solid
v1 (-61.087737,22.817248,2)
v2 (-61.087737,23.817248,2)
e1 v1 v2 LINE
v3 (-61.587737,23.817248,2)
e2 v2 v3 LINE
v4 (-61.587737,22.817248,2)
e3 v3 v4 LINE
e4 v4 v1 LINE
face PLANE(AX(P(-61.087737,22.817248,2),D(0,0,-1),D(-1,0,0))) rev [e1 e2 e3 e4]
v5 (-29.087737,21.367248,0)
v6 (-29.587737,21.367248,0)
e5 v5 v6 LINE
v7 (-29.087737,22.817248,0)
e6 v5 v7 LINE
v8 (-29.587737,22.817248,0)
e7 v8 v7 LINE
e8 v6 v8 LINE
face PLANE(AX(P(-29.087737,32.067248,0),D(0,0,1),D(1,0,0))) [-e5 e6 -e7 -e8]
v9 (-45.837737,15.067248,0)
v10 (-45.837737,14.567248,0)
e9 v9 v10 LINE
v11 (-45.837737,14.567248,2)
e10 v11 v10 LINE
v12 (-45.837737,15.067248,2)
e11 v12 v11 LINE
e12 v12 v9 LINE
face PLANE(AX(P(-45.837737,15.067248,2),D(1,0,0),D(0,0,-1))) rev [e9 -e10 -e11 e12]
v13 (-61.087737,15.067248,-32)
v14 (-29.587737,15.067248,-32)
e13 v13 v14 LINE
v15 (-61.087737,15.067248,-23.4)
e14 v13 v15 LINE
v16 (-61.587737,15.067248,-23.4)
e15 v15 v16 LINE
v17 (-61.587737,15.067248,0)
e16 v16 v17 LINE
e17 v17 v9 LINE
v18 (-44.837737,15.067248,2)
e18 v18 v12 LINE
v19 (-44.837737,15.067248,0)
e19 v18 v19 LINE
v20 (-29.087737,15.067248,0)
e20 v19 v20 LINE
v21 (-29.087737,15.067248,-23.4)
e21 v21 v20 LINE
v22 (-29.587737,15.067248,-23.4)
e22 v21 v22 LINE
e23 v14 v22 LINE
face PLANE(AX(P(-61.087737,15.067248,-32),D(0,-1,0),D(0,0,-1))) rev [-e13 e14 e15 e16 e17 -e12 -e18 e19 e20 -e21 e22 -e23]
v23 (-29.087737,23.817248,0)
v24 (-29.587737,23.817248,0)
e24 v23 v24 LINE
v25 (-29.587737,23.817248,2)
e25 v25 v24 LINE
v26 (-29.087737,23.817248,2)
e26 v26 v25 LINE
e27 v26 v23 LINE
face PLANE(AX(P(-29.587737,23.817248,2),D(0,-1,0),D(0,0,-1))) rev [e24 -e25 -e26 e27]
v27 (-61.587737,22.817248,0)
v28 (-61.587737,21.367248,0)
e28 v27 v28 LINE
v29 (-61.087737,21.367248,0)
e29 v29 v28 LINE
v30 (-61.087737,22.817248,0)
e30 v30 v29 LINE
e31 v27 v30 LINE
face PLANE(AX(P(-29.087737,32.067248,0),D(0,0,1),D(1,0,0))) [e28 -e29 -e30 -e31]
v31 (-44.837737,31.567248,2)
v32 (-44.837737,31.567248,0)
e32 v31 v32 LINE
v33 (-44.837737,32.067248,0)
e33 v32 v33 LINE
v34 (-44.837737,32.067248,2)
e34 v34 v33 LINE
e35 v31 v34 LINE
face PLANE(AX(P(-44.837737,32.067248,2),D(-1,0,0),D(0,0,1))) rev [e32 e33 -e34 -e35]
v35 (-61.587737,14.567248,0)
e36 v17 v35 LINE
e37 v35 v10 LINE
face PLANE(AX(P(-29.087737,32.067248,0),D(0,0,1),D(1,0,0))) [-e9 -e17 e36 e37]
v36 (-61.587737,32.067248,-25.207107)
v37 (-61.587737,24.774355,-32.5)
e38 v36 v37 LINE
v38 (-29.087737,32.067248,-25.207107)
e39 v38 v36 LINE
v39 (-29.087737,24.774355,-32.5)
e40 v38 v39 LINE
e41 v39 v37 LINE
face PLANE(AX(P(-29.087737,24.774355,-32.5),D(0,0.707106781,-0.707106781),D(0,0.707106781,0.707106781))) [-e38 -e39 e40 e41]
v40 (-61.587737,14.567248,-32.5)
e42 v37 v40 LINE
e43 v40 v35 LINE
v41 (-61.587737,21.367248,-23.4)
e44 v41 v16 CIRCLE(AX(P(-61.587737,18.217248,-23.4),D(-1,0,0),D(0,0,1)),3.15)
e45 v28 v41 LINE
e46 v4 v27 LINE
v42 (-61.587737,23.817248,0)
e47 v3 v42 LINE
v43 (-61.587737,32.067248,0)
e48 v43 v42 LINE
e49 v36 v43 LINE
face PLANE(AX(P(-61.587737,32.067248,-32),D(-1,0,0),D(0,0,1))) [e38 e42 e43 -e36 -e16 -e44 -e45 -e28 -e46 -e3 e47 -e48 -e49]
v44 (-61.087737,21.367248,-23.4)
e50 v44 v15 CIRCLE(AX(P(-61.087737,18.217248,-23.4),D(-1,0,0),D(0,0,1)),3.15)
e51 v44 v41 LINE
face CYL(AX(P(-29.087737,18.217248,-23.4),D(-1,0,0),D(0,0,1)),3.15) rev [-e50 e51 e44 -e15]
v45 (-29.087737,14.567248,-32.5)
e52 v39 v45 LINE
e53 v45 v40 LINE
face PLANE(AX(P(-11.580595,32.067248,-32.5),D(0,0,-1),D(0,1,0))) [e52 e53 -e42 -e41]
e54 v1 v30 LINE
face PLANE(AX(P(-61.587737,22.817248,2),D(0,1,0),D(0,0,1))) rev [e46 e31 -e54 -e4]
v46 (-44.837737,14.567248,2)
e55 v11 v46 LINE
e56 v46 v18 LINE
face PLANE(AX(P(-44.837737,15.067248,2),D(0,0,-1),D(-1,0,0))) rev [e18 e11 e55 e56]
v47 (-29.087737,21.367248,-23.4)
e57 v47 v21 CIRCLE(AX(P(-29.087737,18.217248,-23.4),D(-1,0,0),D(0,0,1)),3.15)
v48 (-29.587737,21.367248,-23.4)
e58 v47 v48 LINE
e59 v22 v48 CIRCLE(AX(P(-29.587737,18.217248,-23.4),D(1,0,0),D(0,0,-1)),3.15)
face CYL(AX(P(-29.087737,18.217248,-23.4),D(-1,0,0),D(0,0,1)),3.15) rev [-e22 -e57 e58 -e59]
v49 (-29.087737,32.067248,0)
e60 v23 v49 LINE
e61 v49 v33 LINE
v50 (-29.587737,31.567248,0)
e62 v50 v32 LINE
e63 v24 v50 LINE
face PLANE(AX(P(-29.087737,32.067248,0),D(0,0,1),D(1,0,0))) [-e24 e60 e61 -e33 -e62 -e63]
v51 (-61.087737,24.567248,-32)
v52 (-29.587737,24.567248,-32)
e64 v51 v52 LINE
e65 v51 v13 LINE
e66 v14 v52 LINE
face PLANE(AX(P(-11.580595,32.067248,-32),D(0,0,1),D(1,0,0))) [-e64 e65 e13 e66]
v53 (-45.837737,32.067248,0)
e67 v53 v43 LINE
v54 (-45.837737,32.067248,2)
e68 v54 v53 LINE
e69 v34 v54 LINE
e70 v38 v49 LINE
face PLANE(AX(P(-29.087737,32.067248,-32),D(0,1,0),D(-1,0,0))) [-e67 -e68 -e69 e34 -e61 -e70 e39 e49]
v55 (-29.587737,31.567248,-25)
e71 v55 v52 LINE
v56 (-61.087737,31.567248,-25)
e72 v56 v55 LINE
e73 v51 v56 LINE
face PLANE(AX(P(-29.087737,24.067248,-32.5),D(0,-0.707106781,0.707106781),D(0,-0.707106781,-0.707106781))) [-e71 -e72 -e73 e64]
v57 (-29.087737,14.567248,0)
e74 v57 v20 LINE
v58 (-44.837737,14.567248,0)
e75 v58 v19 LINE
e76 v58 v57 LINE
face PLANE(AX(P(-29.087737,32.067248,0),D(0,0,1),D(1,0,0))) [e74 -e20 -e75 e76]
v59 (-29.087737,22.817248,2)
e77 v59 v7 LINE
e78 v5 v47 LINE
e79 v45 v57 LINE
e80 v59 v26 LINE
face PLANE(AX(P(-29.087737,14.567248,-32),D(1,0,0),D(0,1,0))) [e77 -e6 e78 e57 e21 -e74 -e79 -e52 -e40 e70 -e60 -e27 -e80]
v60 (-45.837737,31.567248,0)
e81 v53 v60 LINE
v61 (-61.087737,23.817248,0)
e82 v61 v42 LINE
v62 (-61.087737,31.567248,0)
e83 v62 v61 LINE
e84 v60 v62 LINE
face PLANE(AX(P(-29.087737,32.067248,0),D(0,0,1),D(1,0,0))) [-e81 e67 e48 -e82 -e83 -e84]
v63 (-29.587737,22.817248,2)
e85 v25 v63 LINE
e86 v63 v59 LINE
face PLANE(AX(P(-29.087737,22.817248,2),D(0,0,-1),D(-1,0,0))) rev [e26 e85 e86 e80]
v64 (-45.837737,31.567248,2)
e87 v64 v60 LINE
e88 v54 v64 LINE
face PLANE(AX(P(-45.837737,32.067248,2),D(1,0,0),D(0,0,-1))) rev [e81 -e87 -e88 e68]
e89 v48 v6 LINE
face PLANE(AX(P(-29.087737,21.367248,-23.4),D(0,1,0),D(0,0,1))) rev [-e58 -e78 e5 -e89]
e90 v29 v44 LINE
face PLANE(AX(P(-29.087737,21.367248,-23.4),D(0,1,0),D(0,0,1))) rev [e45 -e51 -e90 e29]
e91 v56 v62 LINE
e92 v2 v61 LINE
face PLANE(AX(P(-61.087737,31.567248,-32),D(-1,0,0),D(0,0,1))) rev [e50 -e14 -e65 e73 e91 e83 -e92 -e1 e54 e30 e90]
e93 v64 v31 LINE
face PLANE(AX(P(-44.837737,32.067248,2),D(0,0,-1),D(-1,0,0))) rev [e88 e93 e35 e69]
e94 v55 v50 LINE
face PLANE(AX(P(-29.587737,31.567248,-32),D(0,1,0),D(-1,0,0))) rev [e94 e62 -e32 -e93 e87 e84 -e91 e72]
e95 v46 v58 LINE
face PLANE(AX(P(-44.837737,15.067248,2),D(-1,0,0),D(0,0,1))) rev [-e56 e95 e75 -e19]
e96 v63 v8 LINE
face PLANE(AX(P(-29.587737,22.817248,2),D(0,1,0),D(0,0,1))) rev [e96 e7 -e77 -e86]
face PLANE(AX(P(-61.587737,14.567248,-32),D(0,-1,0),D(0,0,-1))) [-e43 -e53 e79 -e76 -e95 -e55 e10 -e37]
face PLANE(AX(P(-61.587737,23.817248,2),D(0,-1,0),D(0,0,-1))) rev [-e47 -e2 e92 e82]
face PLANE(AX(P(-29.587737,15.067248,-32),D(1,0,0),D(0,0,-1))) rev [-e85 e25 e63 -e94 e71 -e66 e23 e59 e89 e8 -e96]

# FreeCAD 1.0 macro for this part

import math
import FreeCAD as App
import Part
import Sketcher
Q = App.Units.Quantity

doc = App.newDocument("Part")
params = doc.addObject("Spreadsheet::Sheet", "Params")
for row, (alias, value) in enumerate([
    ("sketch1_width", "32.5 mm"),
    ("sketch1_width2", "31.5 mm"),
    ("sketch1_height", "17.5 mm"),
    ("sketch1_height2", "16.5 mm"),
    ("pad1_length", "32 mm"),
    ("sketch2_width", "17.5 mm"),
    ("sketch2_height", "0.5 mm"),
    ("pad2_length", "32.5 mm"),
    ("sketch3_radius", "3.15 mm"),
    ("sketch4_width", "1 mm"),
    ("sketch4_width2", "0.5 mm"),
    ("pad3_length", "2 mm"),
    ("pocket2_length", "35.69367 mm"),
    ("pad4_length", "32.5 mm"),
], start=1):
    params.set(f"A{row}", alias)
    params.set(f"B{row}", "=" + value)
    params.setAlias(f"B{row}", alias)

body = doc.addObject("PartDesign::Body", "Body")

# Sketch on XY plane
sketch1 = body.newObject("Sketcher::SketchObject", "Sketch")
sketch1.AttachmentSupport = (doc.getObject("XY_Plane"), [""])
sketch1.MapMode = "FlatFace"
sketch1.addGeometry([
    Part.LineSegment(App.Vector(-61.587737, 32.067248, 0), App.Vector(-61.587737, 14.567248, 0)),  # 0
    Part.LineSegment(App.Vector(-61.587737, 14.567248, 0), App.Vector(-29.087737, 14.567248, 0)),  # 1
    Part.LineSegment(App.Vector(-29.087737, 14.567248, 0), App.Vector(-29.087737, 32.067248, 0)),  # 2
    Part.LineSegment(App.Vector(-29.087737, 32.067248, 0), App.Vector(-61.587737, 32.067248, 0)),  # 3
    Part.LineSegment(App.Vector(-29.587737, 15.067248, 0), App.Vector(-61.087737, 15.067248, 0)),  # 4
    Part.LineSegment(App.Vector(-61.087737, 15.067248, 0), App.Vector(-61.087737, 31.567248, 0)),  # 5
    Part.LineSegment(App.Vector(-61.087737, 31.567248, 0), App.Vector(-29.587737, 31.567248, 0)),  # 6
    Part.LineSegment(App.Vector(-29.587737, 31.567248, 0), App.Vector(-29.587737, 15.067248, 0)),  # 7
], False)
sketch1.addConstraint([
    Sketcher.Constraint("Coincident", 0, 2, 1, 1),
    Sketcher.Constraint("Coincident", 1, 2, 2, 1),
    Sketcher.Constraint("Coincident", 2, 2, 3, 1),
    Sketcher.Constraint("Coincident", 3, 2, 0, 1),
    Sketcher.Constraint("Coincident", 4, 2, 5, 1),
    Sketcher.Constraint("Coincident", 5, 2, 6, 1),
    Sketcher.Constraint("Coincident", 6, 2, 7, 1),
    Sketcher.Constraint("Coincident", 7, 2, 4, 1),
    Sketcher.Constraint("Vertical", 0),
    Sketcher.Constraint("Horizontal", 1),
    Sketcher.Constraint("Vertical", 2),
    Sketcher.Constraint("Horizontal", 3),
    Sketcher.Constraint("Horizontal", 4),
    Sketcher.Constraint("Vertical", 5),
    Sketcher.Constraint("Horizontal", 6),
    Sketcher.Constraint("Vertical", 7),
    Sketcher.Constraint("DistanceX", 1, 1, 1, 2, Q("32.5 mm")),
    Sketcher.Constraint("DistanceX", 4, 2, 4, 1, Q("31.5 mm")),
    Sketcher.Constraint("DistanceY", 0, 2, 0, 1, Q("17.5 mm")),
    Sketcher.Constraint("DistanceY", 5, 1, 5, 2, Q("16.5 mm")),
    Sketcher.Constraint("DistanceY", 4, 2, 3, 2, Q("17 mm")),
    Sketcher.Constraint("DistanceX", 4, 2, 1, 2, Q("32 mm")),
    Sketcher.Constraint("DistanceY", -1, 1, 0, 2, Q("14.567248 mm")),
    Sketcher.Constraint("DistanceX", 0, 2, -1, 1, Q("61.587737 mm")),
])
sketch1.setExpression("Constraints[16]", "Params.sketch1_width")
sketch1.setExpression("Constraints[17]", "Params.sketch1_width2")
sketch1.setExpression("Constraints[18]", "Params.sketch1_height")
sketch1.setExpression("Constraints[19]", "Params.sketch1_height2")
pad1 = body.newObject("PartDesign::Pad", "Pad")
pad1.Profile = sketch1
pad1.setExpression("Length", "Params.pad1_length")
pad1.Reversed = True

# Sketch on YZ plane
sketch2 = body.newObject("Sketcher::SketchObject", "Sketch001")
sketch2.AttachmentSupport = (doc.getObject("YZ_Plane"), [""])
sketch2.MapMode = "FlatFace"
sketch2.AttachmentOffset = App.Placement(App.Vector(0, 0, -61.587737), App.Rotation())
sketch2.addGeometry([
    Part.LineSegment(App.Vector(32.067248, -32.5, 0), App.Vector(14.567248, -32.5, 0)),
    Part.LineSegment(App.Vector(14.567248, -32.5, 0), App.Vector(14.567248, -32, 0)),
    Part.LineSegment(App.Vector(14.567248, -32, 0), App.Vector(32.067248, -32, 0)),
    Part.LineSegment(App.Vector(32.067248, -32, 0), App.Vector(32.067248, -32.5, 0)),
], False)
sketch2.addConstraint([
    Sketcher.Constraint("Coincident", 0, 2, 1, 1),
    Sketcher.Constraint("Coincident", 1, 2, 2, 1),
    Sketcher.Constraint("Coincident", 2, 2, 3, 1),
    Sketcher.Constraint("Coincident", 3, 2, 0, 1),
    Sketcher.Constraint("Horizontal", 0),
    Sketcher.Constraint("Vertical", 1),
    Sketcher.Constraint("Horizontal", 2),
    Sketcher.Constraint("Vertical", 3),
    Sketcher.Constraint("DistanceX", 0, 2, 0, 1, Q("17.5 mm")),
    Sketcher.Constraint("DistanceY", 1, 1, 1, 2, Q("0.5 mm")),
    Sketcher.Constraint("DistanceY", 1, 2, -1, 1, Q("32 mm")),
    Sketcher.Constraint("DistanceX", -1, 1, 0, 2, Q("14.567248 mm")),
])
sketch2.setExpression("Constraints[8]", "Params.sketch2_width")
sketch2.setExpression("Constraints[9]", "Params.sketch2_height")
pad2 = body.newObject("PartDesign::Pad", "Pad001")
pad2.Profile = sketch2
pad2.setExpression("Length", "Params.pad2_length")

# Sketch on YZ plane
sketch3 = body.newObject("Sketcher::SketchObject", "Sketch002")
sketch3.AttachmentSupport = (doc.getObject("YZ_Plane"), [""])
sketch3.MapMode = "FlatFace"
sketch3.AttachmentOffset = App.Placement(App.Vector(0, 0, -61.587737), App.Rotation())
sketch3.addGeometry([
    Part.LineSegment(App.Vector(15.067248, -23.4, 0), App.Vector(15.067248, 0.817294, 0)),
    Part.LineSegment(App.Vector(15.067248, 0.817294, 0), App.Vector(21.367248, 0.817294, 0)),
    Part.LineSegment(App.Vector(21.367248, 0.817294, 0), App.Vector(21.367248, -23.4, 0)),
    Part.ArcOfCircle(Part.Circle(App.Vector(18.217248, -23.4, 0), App.Vector(0, 0, 1), 3.15), math.radians(180), math.radians(360)),
], False)
sketch3.addConstraint([
    Sketcher.Constraint("Coincident", 0, 2, 1, 1),
    Sketcher.Constraint("Coincident", 1, 2, 2, 1),
    Sketcher.Constraint("Tangent", 2, 2, 3, 2),
    Sketcher.Constraint("Tangent", 3, 1, 0, 1),
    Sketcher.Constraint("Vertical", 0),
    Sketcher.Constraint("Horizontal", 1),
    Sketcher.Constraint("Vertical", 2),
    Sketcher.Constraint("Radius", 3, Q("3.15 mm")),
    Sketcher.Constraint("DistanceY", 3, 3, -1, 1, Q("23.4 mm")),
    Sketcher.Constraint("DistanceY", 0, 1, 0, 2, Q("24.217294 mm")),
    Sketcher.Constraint("DistanceX", -1, 1, 3, 3, Q("18.217248 mm")),
])
sketch3.setExpression("Constraints[7]", "Params.sketch3_radius")
pocket1 = body.newObject("PartDesign::Pocket", "Pocket")
pocket1.Profile = sketch3
pocket1.Type = "ThroughAll"
pocket1.Reversed = True

# Sketch on XY plane
sketch4 = body.newObject("Sketcher::SketchObject", "Sketch003")
sketch4.AttachmentSupport = (doc.getObject("XY_Plane"), [""])
sketch4.MapMode = "FlatFace"
sketch4.addGeometry([
    Part.LineSegment(App.Vector(-45.837737, 15.067248, 0), App.Vector(-45.837737, 14.567248, 0)),  # 0
    Part.LineSegment(App.Vector(-45.837737, 14.567248, 0), App.Vector(-44.837737, 14.567248, 0)),  # 1
    Part.LineSegment(App.Vector(-44.837737, 14.567248, 0), App.Vector(-44.837737, 15.067248, 0)),  # 2
    Part.LineSegment(App.Vector(-44.837737, 15.067248, 0), App.Vector(-45.837737, 15.067248, 0)),  # 3
    Part.LineSegment(App.Vector(-29.587737, 23.817248, 0), App.Vector(-29.587737, 22.817248, 0)),  # 4
    Part.LineSegment(App.Vector(-29.587737, 22.817248, 0), App.Vector(-29.087737, 22.817248, 0)),  # 5
    Part.LineSegment(App.Vector(-29.087737, 22.817248, 0), App.Vector(-29.087737, 23.817248, 0)),  # 6
    Part.LineSegment(App.Vector(-29.087737, 23.817248, 0), App.Vector(-29.587737, 23.817248, 0)),  # 7
    Part.LineSegment(App.Vector(-45.837737, 32.067248, 0), App.Vector(-45.837737, 31.567248, 0)),  # 8
    Part.LineSegment(App.Vector(-45.837737, 31.567248, 0), App.Vector(-44.837737, 31.567248, 0)),  # 9
    Part.LineSegment(App.Vector(-44.837737, 31.567248, 0), App.Vector(-44.837737, 32.067248, 0)),  # 10
    Part.LineSegment(App.Vector(-44.837737, 32.067248, 0), App.Vector(-45.837737, 32.067248, 0)),  # 11
    Part.LineSegment(App.Vector(-61.587737, 23.817248, 0), App.Vector(-61.587737, 22.817248, 0)),  # 12
    Part.LineSegment(App.Vector(-61.587737, 22.817248, 0), App.Vector(-61.087737, 22.817248, 0)),  # 13
    Part.LineSegment(App.Vector(-61.087737, 22.817248, 0), App.Vector(-61.087737, 23.817248, 0)),  # 14
    Part.LineSegment(App.Vector(-61.087737, 23.817248, 0), App.Vector(-61.587737, 23.817248, 0)),  # 15
], False)
sketch4.addConstraint([
    Sketcher.Constraint("Coincident", 0, 2, 1, 1),
    Sketcher.Constraint("Coincident", 1, 2, 2, 1),
    Sketcher.Constraint("Coincident", 2, 2, 3, 1),
    Sketcher.Constraint("Coincident", 3, 2, 0, 1),
    Sketcher.Constraint("Coincident", 4, 2, 5, 1),
    Sketcher.Constraint("Coincident", 5, 2, 6, 1),
    Sketcher.Constraint("Coincident", 6, 2, 7, 1),
    Sketcher.Constraint("Coincident", 7, 2, 4, 1),
    Sketcher.Constraint("Coincident", 8, 2, 9, 1),
    Sketcher.Constraint("Coincident", 9, 2, 10, 1),
    Sketcher.Constraint("Coincident", 10, 2, 11, 1),
    Sketcher.Constraint("Coincident", 11, 2, 8, 1),
    Sketcher.Constraint("Coincident", 12, 2, 13, 1),
    Sketcher.Constraint("Coincident", 13, 2, 14, 1),
    Sketcher.Constraint("Coincident", 14, 2, 15, 1),
    Sketcher.Constraint("Coincident", 15, 2, 12, 1),
    Sketcher.Constraint("Vertical", 0),
    Sketcher.Constraint("Horizontal", 1),
    Sketcher.Constraint("Vertical", 2),
    Sketcher.Constraint("Horizontal", 3),
    Sketcher.Constraint("Vertical", 4),
    Sketcher.Constraint("Horizontal", 5),
    Sketcher.Constraint("Vertical", 6),
    Sketcher.Constraint("Horizontal", 7),
    Sketcher.Constraint("Vertical", 8),
    Sketcher.Constraint("Horizontal", 9),
    Sketcher.Constraint("Vertical", 10),
    Sketcher.Constraint("Horizontal", 11),
    Sketcher.Constraint("Vertical", 12),
    Sketcher.Constraint("Horizontal", 13),
    Sketcher.Constraint("Vertical", 14),
    Sketcher.Constraint("Horizontal", 15),
    Sketcher.Constraint("Horizontal", 5, 2, 12, 2),
    Sketcher.Constraint("Horizontal", 7, 2, 14, 2),
    Sketcher.Constraint("Vertical", 3, 2, 8, 2),
    Sketcher.Constraint("Vertical", 2, 2, 9, 2),
    Sketcher.Constraint("Equal", 7, 13),
    Sketcher.Constraint("Equal", 15, 0),
    Sketcher.Constraint("Equal", 11, 4),
    Sketcher.Constraint("Equal", 2, 8),
    Sketcher.Constraint("DistanceX", 1, 1, 1, 2, Q("1 mm")),
    Sketcher.Constraint("DistanceX", 5, 1, 5, 2, Q("0.5 mm")),
    Sketcher.Constraint("DistanceY", 0, 2, 8, 2, Q("17 mm")),
    Sketcher.Constraint("DistanceX", 2, 2, 4, 2, Q("15.25 mm")),
    Sketcher.Constraint("DistanceY", 2, 2, 4, 2, Q("7.75 mm")),
    Sketcher.Constraint("DistanceX", 12, 2, 3, 2, Q("15.75 mm")),
    Sketcher.Constraint("DistanceY", -1, 1, 0, 2, Q("14.567248 mm")),
    Sketcher.Constraint("DistanceX", 0, 2, -1, 1, Q("45.837737 mm")),
])
sketch4.setExpression("Constraints[40]", "Params.sketch4_width")
sketch4.setExpression("Constraints[41]", "Params.sketch4_width2")
pad3 = body.newObject("PartDesign::Pad", "Pad002")
pad3.Profile = sketch4
pad3.setExpression("Length", "Params.pad3_length")

# Sketch on YZ plane
sketch5 = body.newObject("Sketcher::SketchObject", "Sketch004")
sketch5.AttachmentSupport = (doc.getObject("YZ_Plane"), [""])
sketch5.MapMode = "FlatFace"
sketch5.AttachmentOffset = App.Placement(App.Vector(0, 0, -61.587737), App.Rotation())
sketch5.addGeometry([
    Part.LineSegment(App.Vector(38.760654, -29.203507, 0), App.Vector(26.437226, -41.526936, 0)),
    Part.LineSegment(App.Vector(26.437226, -41.526936, 0), App.Vector(20.738769, -35.828479, 0)),
    Part.LineSegment(App.Vector(20.738769, -35.828479, 0), App.Vector(33.062197, -23.505051, 0)),
    Part.LineSegment(App.Vector(33.062197, -23.505051, 0), App.Vector(38.760654, -29.203507, 0)),
], False)
sketch5.addConstraint([
    Sketcher.Constraint("Coincident", 0, 2, 1, 1),
    Sketcher.Constraint("Coincident", 1, 2, 2, 1),
    Sketcher.Constraint("Coincident", 2, 2, 3, 1),
    Sketcher.Constraint("Coincident", 3, 2, 0, 1),
    Sketcher.Constraint("Perpendicular", 0, 1),
    Sketcher.Constraint("Perpendicular", 1, 2),
    Sketcher.Constraint("Perpendicular", 2, 3),
    Sketcher.Constraint("Angle", 0, Q("-135 deg")),
    Sketcher.Constraint("Distance", 0, Q("17.427959 mm")),
    Sketcher.Constraint("DistanceX", -1, 1, 1, 2, Q("20.738769 mm")),
    Sketcher.Constraint("DistanceY", 1, 2, -1, 1, Q("35.828479 mm")),
    Sketcher.Constraint("DistanceX", 0, 2, 2, 2, Q("6.624972 mm")),
])
pocket2 = body.newObject("PartDesign::Pocket", "Pocket001")
pocket2.Profile = sketch5
pocket2.setExpression("Length", "Params.pocket2_length")
pocket2.Reversed = True

# Sketch on YZ plane
sketch6 = body.newObject("Sketcher::SketchObject", "Sketch005")
sketch6.AttachmentSupport = (doc.getObject("YZ_Plane"), [""])
sketch6.MapMode = "FlatFace"
sketch6.AttachmentOffset = App.Placement(App.Vector(0, 0, -61.587737), App.Rotation())
sketch6.addGeometry([
    Part.LineSegment(App.Vector(24.067248, -32.5, 0), App.Vector(32.067248, -24.5, 0)),
    Part.LineSegment(App.Vector(32.067248, -24.5, 0), App.Vector(32.067248, -25.207107, 0)),
    Part.LineSegment(App.Vector(32.067248, -25.207107, 0), App.Vector(24.774355, -32.5, 0)),
    Part.LineSegment(App.Vector(24.774355, -32.5, 0), App.Vector(24.067248, -32.5, 0)),
], False)
sketch6.addConstraint([
    Sketcher.Constraint("Coincident", 0, 2, 1, 1),
    Sketcher.Constraint("Coincident", 1, 2, 2, 1),
    Sketcher.Constraint("Coincident", 2, 2, 3, 1),
    Sketcher.Constraint("Coincident", 3, 2, 0, 1),
    Sketcher.Constraint("Vertical", 1),
    Sketcher.Constraint("Horizontal", 3),
    Sketcher.Constraint("Parallel", 0, 2),
    Sketcher.Constraint("Equal", 3, 1),
    Sketcher.Constraint("DistanceY", 2, 2, 0, 2, Q("8 mm")),
    Sketcher.Constraint("DistanceY", 0, 2, -1, 1, Q("24.5 mm")),
    Sketcher.Constraint("Distance", 2, Q("10.313708 mm")),
    Sketcher.Constraint("DistanceX", -1, 1, 0, 2, Q("32.067248 mm")),
])
pad4 = body.newObject("PartDesign::Pad", "Pad003")
pad4.Profile = sketch6
pad4.setExpression("Length", "Params.pad4_length")

doc.recompute()
